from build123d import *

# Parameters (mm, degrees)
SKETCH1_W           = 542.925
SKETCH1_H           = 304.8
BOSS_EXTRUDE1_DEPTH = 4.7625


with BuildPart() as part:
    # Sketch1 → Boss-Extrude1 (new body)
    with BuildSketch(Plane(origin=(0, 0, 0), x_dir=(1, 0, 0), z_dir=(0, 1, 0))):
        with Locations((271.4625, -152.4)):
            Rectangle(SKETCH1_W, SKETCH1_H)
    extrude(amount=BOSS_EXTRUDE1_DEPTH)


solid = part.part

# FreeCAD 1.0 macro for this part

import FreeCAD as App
import Part
import Sketcher
from FreeCAD import Vector
Q = App.Units.Quantity


def add_polygon(sketch, points):
    """Adds a closed chain of lines whose ends are joined by coincident constraints."""
    first, n = sketch.GeometryCount, len(points)
    for a, b in zip(points, points[1:] + points[:1]):
        sketch.addGeometry(Part.LineSegment(App.Vector(*a, 0), App.Vector(*b, 0)), False)
    for i in range(n):
        sketch.addConstraint(Sketcher.Constraint("Coincident", first + i, 2, first + (i + 1) % n, 1))

doc = App.newDocument("Part")
body = doc.addObject("PartDesign::Body", "Body")

# Sketch on XZ plane
sketch1 = body.newObject("Sketcher::SketchObject", "Sketch")
sketch1.AttachmentSupport = (doc.getObject("XZ_Plane"), [""])
sketch1.MapMode = "FlatFace"
add_polygon(sketch1, [(0, 0), (0, 305), (543, 305), (543, 0)])  # lines 0-3
sketch1.addConstraint([
    Sketcher.Constraint("Vertical", 0),
    Sketcher.Constraint("Horizontal", 1),
    Sketcher.Constraint("Vertical", 2),
    Sketcher.Constraint("Horizontal", 3),
    Sketcher.Constraint("Coincident", 3, 2, -1, 1),
    Sketcher.Constraint("DistanceY", 0, 1, 0, 2, Q("12 in")),
    Sketcher.Constraint("DistanceX", 1, 1, 1, 2, Q("21.375 in")),
])
pad1 = body.newObject("PartDesign::Pad", "Pad")
pad1.Profile = sketch1
pad1.Length = Q("0.1875 in")
pad1.Reversed = True

doc.recompute()
